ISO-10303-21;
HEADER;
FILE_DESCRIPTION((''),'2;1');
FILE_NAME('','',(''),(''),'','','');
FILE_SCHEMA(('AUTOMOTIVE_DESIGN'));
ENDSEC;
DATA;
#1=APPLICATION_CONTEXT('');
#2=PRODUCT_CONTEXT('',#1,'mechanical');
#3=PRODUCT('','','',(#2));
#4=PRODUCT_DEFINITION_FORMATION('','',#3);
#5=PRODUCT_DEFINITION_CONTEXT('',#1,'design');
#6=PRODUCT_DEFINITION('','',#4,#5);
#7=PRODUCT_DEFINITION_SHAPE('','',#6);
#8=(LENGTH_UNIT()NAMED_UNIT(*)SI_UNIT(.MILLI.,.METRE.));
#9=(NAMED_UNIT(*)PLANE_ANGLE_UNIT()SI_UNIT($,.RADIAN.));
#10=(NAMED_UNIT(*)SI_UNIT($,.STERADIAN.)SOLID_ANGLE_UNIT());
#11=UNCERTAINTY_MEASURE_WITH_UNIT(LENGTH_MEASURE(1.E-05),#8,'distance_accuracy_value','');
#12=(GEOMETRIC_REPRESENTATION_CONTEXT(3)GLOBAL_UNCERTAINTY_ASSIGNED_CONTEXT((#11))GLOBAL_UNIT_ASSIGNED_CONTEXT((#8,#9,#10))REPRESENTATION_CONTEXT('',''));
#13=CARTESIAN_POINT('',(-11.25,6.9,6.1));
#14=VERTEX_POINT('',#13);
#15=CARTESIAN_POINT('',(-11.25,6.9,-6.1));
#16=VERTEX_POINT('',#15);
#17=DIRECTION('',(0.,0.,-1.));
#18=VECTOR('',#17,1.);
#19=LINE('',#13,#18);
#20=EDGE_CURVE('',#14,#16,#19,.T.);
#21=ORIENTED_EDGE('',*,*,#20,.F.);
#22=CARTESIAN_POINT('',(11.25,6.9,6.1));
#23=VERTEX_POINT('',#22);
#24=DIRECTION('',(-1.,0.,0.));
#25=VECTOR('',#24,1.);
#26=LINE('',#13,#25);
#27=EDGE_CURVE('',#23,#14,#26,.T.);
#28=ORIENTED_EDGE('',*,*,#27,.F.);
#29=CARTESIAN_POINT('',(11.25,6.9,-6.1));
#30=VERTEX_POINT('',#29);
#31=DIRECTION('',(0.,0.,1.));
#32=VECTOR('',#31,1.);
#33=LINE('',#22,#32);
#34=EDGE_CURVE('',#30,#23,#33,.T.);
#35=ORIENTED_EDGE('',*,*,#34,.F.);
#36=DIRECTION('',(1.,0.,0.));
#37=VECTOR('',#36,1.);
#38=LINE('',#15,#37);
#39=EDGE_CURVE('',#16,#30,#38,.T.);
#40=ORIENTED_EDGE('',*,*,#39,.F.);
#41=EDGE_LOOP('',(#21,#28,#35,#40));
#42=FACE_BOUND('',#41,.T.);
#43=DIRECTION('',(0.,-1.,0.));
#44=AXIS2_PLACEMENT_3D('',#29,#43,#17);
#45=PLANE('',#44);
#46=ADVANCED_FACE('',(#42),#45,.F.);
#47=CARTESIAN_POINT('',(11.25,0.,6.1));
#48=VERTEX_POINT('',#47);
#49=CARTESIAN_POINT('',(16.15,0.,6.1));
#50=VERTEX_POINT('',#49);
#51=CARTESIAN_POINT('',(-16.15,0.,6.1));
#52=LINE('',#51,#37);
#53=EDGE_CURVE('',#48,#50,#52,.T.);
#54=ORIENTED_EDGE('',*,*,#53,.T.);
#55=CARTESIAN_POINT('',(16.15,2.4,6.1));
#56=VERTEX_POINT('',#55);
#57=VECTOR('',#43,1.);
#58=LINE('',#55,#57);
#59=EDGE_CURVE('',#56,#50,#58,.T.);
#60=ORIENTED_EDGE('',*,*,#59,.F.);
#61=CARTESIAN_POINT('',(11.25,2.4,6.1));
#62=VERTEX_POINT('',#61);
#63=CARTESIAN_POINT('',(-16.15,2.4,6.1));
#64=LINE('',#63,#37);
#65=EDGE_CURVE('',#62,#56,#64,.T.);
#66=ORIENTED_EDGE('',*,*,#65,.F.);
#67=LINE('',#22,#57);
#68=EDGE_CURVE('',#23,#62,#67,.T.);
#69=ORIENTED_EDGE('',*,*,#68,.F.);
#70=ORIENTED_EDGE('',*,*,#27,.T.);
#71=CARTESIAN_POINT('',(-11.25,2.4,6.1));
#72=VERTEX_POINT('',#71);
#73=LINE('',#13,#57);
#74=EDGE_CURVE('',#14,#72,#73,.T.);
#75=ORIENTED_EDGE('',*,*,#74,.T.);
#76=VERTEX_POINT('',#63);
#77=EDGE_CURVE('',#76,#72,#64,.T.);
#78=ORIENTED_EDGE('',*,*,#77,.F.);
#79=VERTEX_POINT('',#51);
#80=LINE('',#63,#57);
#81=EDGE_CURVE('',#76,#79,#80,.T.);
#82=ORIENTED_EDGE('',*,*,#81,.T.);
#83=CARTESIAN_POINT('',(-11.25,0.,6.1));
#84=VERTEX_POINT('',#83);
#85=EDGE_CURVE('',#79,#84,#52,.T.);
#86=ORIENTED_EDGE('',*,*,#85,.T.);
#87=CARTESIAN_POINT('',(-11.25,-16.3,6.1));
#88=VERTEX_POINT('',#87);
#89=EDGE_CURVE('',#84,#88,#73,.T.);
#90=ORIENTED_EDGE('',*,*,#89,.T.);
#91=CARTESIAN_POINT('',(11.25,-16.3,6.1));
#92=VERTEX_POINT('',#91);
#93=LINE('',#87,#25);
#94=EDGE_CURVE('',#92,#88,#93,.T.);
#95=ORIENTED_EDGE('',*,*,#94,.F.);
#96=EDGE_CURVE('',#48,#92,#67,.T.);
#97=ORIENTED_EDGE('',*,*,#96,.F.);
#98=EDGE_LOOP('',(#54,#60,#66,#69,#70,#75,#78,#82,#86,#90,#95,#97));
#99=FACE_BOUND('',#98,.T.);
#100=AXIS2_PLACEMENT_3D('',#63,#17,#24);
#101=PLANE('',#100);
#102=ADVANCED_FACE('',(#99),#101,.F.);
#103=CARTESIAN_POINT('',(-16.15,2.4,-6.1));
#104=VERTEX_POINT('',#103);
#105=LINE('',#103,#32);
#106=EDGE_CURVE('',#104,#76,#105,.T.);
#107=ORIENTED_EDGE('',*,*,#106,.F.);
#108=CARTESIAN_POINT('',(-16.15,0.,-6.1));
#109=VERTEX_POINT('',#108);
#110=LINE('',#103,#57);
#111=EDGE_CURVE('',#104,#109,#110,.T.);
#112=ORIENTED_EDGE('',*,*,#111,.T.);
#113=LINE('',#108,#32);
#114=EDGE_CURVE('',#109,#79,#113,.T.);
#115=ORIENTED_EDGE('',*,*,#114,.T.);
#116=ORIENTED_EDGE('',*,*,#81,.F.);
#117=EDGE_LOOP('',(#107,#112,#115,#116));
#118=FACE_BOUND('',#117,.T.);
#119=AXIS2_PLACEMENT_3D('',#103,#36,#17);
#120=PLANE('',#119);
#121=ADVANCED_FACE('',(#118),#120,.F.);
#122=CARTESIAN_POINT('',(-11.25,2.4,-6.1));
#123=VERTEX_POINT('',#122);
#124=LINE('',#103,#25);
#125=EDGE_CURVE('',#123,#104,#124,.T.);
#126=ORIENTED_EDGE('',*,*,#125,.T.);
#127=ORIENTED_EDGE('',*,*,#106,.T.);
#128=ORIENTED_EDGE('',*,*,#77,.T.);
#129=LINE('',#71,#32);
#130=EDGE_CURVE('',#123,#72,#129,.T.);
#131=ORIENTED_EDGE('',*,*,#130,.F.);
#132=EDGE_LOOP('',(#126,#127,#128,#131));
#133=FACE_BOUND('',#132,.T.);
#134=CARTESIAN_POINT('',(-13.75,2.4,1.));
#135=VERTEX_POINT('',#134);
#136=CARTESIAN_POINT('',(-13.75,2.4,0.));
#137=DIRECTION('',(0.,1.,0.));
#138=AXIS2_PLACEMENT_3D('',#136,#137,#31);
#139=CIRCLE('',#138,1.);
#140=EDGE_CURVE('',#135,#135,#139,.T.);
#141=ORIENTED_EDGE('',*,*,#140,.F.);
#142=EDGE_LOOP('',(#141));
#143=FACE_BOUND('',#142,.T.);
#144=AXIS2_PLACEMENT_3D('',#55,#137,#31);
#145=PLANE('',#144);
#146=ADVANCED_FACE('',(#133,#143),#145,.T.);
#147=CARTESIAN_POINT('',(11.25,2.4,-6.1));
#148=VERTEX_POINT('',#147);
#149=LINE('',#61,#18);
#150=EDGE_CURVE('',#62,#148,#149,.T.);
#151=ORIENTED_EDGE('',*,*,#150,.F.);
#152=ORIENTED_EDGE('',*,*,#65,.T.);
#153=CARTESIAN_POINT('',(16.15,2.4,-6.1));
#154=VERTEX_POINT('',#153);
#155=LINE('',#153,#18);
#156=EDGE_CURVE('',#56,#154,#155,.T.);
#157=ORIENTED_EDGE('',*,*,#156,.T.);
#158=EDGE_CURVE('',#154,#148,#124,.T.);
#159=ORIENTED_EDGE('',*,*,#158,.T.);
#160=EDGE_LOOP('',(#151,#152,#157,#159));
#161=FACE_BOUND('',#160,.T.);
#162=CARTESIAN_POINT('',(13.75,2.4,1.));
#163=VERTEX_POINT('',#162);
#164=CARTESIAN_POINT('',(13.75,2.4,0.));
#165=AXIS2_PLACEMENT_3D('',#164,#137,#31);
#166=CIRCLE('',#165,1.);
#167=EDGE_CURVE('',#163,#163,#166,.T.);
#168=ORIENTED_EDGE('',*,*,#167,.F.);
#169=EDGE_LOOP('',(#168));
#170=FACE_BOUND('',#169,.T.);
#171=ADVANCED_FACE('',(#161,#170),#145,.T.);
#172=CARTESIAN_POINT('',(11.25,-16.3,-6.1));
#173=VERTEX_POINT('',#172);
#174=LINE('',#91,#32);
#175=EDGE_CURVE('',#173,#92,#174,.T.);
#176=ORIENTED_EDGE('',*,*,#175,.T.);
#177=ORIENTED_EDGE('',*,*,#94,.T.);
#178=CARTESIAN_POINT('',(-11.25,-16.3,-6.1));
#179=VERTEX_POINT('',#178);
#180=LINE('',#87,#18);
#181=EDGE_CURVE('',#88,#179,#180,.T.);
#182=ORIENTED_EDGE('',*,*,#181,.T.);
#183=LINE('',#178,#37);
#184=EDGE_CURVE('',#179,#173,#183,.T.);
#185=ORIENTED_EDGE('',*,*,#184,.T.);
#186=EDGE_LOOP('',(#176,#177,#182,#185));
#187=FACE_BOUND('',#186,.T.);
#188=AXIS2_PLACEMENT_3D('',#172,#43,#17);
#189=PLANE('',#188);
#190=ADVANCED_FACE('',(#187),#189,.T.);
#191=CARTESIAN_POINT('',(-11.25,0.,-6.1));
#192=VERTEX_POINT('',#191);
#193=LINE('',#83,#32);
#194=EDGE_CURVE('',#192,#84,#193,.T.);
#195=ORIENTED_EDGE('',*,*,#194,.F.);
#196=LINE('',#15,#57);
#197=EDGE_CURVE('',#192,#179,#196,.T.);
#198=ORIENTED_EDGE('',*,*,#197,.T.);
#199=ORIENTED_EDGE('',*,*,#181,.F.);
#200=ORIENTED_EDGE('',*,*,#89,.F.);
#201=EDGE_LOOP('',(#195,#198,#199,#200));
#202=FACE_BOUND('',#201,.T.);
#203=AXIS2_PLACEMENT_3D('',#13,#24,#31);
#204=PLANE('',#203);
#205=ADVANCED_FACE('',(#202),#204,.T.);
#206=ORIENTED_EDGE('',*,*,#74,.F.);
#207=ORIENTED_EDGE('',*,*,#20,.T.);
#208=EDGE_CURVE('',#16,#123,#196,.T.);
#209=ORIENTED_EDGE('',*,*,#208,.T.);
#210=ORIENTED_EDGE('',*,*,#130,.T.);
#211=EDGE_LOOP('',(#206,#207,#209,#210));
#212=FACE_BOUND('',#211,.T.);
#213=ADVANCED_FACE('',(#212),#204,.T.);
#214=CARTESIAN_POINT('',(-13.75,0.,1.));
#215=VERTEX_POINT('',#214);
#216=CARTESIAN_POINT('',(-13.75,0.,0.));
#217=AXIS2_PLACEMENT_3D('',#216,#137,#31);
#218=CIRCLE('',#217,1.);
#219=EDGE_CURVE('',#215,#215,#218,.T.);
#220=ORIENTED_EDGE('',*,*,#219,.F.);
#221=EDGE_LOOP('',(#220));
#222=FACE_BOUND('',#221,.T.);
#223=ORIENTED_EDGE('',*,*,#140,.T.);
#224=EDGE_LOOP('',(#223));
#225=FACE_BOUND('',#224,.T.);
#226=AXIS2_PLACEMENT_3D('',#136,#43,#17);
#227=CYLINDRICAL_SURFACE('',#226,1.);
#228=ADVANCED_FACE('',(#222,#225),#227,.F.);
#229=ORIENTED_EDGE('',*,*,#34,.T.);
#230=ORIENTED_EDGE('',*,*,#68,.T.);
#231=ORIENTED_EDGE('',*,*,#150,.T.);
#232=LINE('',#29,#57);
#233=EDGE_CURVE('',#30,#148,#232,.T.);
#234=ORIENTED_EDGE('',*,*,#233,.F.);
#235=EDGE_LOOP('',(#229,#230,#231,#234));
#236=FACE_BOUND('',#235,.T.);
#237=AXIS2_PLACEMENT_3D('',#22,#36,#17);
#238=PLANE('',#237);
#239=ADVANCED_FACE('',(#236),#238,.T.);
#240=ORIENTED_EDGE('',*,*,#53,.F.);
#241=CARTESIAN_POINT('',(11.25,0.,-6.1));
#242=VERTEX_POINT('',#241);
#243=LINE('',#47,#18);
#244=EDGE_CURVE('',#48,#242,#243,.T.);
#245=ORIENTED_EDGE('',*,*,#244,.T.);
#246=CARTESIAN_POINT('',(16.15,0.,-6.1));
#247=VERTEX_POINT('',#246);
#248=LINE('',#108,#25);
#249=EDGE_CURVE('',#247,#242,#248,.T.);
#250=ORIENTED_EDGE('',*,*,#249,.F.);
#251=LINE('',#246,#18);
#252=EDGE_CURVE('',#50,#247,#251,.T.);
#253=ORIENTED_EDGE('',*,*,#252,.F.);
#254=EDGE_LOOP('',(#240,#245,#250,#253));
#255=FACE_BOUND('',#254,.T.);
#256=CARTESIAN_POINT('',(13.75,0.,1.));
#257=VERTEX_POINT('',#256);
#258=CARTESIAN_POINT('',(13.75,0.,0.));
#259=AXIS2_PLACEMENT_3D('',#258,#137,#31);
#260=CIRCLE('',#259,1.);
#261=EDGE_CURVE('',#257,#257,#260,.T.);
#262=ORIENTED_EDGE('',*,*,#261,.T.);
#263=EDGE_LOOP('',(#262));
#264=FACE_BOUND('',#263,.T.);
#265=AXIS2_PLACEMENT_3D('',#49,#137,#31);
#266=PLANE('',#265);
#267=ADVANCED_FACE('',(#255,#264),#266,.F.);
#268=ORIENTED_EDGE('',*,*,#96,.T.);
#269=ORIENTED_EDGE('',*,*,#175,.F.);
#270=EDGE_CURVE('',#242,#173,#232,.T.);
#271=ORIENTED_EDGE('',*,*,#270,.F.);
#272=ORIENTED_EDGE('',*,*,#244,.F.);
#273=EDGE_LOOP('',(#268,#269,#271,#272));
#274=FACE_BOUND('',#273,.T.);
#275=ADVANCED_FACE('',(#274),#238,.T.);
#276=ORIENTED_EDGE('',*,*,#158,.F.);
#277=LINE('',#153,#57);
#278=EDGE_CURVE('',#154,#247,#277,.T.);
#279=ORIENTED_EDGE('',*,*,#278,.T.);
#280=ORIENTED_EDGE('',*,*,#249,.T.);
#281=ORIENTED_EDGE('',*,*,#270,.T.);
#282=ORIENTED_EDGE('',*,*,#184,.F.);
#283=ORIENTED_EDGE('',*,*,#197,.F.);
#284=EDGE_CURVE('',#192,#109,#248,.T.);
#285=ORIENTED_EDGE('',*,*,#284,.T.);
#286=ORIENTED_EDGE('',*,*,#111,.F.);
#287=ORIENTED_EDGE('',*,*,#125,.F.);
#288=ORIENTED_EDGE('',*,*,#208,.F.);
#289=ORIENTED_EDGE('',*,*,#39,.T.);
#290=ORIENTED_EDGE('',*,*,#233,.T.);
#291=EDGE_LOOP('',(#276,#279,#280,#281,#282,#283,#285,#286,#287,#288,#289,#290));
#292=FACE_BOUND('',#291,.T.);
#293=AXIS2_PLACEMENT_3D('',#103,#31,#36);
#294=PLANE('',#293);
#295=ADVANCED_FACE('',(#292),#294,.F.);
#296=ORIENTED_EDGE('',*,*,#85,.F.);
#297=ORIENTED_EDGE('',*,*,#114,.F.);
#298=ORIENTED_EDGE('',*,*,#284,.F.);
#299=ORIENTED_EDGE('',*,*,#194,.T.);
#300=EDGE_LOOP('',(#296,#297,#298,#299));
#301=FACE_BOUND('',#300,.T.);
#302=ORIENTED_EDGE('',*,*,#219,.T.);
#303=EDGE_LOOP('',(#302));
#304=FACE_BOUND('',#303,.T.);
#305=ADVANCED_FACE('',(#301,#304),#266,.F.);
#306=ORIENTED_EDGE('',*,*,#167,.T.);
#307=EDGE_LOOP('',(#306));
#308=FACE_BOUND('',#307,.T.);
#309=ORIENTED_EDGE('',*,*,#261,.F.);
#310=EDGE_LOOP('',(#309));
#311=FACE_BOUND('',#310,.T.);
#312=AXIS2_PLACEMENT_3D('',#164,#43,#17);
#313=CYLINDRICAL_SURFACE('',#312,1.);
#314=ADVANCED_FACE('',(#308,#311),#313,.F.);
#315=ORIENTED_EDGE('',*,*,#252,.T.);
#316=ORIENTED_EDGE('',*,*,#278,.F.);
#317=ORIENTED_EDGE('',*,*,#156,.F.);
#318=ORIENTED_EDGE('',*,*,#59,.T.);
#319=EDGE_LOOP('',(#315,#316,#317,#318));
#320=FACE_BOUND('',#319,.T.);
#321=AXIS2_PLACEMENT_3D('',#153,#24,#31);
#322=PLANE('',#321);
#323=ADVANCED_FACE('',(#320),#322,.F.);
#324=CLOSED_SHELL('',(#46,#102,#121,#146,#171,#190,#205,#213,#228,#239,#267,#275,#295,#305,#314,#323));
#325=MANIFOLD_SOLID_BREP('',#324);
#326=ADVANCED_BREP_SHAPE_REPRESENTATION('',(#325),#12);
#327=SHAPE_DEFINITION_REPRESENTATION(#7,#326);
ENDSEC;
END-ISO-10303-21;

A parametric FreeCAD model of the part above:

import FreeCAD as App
import Part
import Sketcher
from FreeCAD import Vector
Q = App.Units.Quantity


def add_polygon(sketch, points):
    """Adds a closed chain of lines whose ends are joined by coincident constraints."""
    first, n = sketch.GeometryCount, len(points)
    for a, b in zip(points, points[1:] + points[:1]):
        sketch.addGeometry(Part.LineSegment(App.Vector(*a, 0), App.Vector(*b, 0)), False)
    for i in range(n):
        sketch.addConstraint(Sketcher.Constraint("Coincident", first + i, 2, first + (i + 1) % n, 1))

doc = App.newDocument("Part")
body = doc.addObject("PartDesign::Body", "Body")

# Sketch on XZ plane
sketch1 = body.newObject("Sketcher::SketchObject", "Sketch")
sketch1.AttachmentSupport = (doc.getObject("XZ_Plane"), [""])
sketch1.MapMode = "FlatFace"
add_polygon(sketch1, [(-16.1, -6.1), (-16.1, 6.1), (16.1, 6.1), (16.1, -6.1)])  # lines 0-3
sketch1.addGeometry(Part.Circle(Vector(-13.8, 0, 0), Vector(0, 0, 1), 1), False)  # 4
sketch1.addGeometry(Part.Circle(Vector(13.8, 0, 0), Vector(0, 0, 1), 1), False)  # 5
sketch1.addConstraint([
    Sketcher.Constraint("Vertical", 0),
    Sketcher.Constraint("Horizontal", 1),
    Sketcher.Constraint("Vertical", 2),
    Sketcher.Constraint("Horizontal", 3),
    Sketcher.Constraint("Equal", 4, 5),
    Sketcher.Constraint("Symmetric", 4, 3, 5, 3, -1, 1),
    Sketcher.Constraint("Symmetric", 0, 2, 2, 2, -1, 1),
    Sketcher.Constraint("PointOnObject", 4, 3, -1),
    Sketcher.Constraint("Diameter", 4, Q("2 mm")),
    Sketcher.Constraint("DistanceX", 1, 1, 1, 2, Q("32.3 mm")),
    Sketcher.Constraint("DistanceY", 0, 1, 0, 2, Q("12.2 mm")),
    Sketcher.Constraint("DistanceX", 4, 3, 5, 3, Q("27.5 mm")),
])
pad1 = body.newObject("PartDesign::Pad", "Pad")
pad1.Profile = sketch1
pad1.Length = 2.4
pad1.Reversed = True

# Sketch on XZ plane
sketch2 = body.newObject("Sketcher::SketchObject", "Sketch001")
sketch2.AttachmentSupport = (doc.getObject("XZ_Plane"), [""])
sketch2.MapMode = "FlatFace"
add_polygon(sketch2, [(-11, 6), (-11, -6), (11, -6), (11, 6)])  # lines 0-3
sketch2.addConstraint([
    Sketcher.Constraint("Vertical", 0),
    Sketcher.Constraint("Horizontal", 1),
    Sketcher.Constraint("Vertical", 2),
    Sketcher.Constraint("Horizontal", 3),
    Sketcher.Constraint("Symmetric", 0, 2, 2, 2, -1, 1),
    Sketcher.Constraint("DistanceX", 1, 1, 1, 2, Q("22.5 mm")),
    Sketcher.Constraint("DistanceY", 0, 2, 0, 1, Q("12.2 mm")),
])
pad2 = body.newObject("PartDesign::Pad", "Pad001")
pad2.Profile = sketch2
pad2.Type = "TwoLengths"
pad2.Length = 16.3
pad2.Length2 = 6.9

doc.recompute()
